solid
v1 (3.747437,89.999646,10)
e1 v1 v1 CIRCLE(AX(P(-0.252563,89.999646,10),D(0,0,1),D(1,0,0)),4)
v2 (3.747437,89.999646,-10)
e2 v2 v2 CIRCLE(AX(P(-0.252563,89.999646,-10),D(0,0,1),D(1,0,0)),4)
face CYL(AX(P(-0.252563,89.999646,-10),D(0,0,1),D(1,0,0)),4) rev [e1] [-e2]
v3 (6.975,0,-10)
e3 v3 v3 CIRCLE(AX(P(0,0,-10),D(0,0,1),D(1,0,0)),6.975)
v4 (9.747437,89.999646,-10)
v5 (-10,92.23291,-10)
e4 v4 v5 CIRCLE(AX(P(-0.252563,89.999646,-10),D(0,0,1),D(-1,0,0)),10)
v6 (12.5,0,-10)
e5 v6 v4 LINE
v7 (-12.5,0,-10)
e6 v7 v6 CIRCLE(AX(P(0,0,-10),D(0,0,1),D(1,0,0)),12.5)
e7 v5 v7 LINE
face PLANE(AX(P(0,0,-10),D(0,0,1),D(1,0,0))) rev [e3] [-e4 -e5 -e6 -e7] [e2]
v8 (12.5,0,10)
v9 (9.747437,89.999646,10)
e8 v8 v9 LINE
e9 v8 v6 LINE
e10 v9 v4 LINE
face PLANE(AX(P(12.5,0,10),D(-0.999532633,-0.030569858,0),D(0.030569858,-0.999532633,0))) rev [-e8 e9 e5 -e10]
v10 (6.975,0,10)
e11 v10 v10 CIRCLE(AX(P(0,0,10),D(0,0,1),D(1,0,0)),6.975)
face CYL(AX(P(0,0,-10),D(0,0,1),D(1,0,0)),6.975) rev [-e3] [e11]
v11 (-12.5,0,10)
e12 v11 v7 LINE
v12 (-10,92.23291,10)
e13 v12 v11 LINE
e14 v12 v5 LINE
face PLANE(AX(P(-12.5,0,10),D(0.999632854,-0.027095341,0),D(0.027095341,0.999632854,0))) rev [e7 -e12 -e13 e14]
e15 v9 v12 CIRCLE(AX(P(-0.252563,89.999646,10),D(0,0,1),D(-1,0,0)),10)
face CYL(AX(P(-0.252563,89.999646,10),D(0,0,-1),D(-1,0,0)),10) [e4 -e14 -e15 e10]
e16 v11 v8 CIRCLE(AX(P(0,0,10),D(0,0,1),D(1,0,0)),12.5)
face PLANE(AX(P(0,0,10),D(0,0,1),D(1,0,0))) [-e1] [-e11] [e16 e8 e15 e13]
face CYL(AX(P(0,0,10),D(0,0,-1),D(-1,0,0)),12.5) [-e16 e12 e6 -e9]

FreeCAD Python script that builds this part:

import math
import FreeCAD as App
import Part
import Sketcher
Q = App.Units.Quantity

doc = App.newDocument("Part")
params = doc.addObject("Spreadsheet::Sheet", "Params")
for row, (alias, value) in enumerate([
    ("sketch1_radius", "10 mm"),
    ("sketch1_radius2", "12.5 mm"),
    ("pad1_length", "20 mm"),
    ("sketch2_diameter", "8 mm"),
    ("sketch3_diameter", "13.95 mm"),
], start=1):
    params.set(f"A{row}", alias)
    params.set(f"B{row}", "=" + value)
    params.setAlias(f"B{row}", alias)

body = doc.addObject("PartDesign::Body", "Body")

# Sketch on XY plane
sketch1 = doc.addObject("Sketcher::SketchObject", "Sketch")
body.addObject(sketch1)
sketch1.AttachmentSupport = (doc.XY_Plane, [""])
sketch1.MapMode = "FlatFace"
sketch1.addGeometry([
    Part.LineSegment(App.Vector(-10, 92, 0), App.Vector(-12, 0, 0)),
    Part.ArcOfCircle(Part.Circle(App.Vector(0, 0, 0), App.Vector(0, 0, 1), 12), math.radians(180), math.radians(360)),
    Part.LineSegment(App.Vector(12, 0, 0), App.Vector(10, 90, 0)),
    Part.ArcOfCircle(Part.Circle(App.Vector(0, 90, 0), App.Vector(0, 0, 1), 10), math.radians(0), math.radians(167)),
], False)
sketch1.addConstraint([
    Sketcher.Constraint("Coincident", 0, 2, 1, 1),
    Sketcher.Constraint("Coincident", 1, 2, 2, 1),
    Sketcher.Constraint("Coincident", 2, 2, 3, 1),
    Sketcher.Constraint("Coincident", 3, 2, 0, 1),
    Sketcher.Constraint("Coincident", 1, 3, -1, 1),
    Sketcher.Constraint("PointOnObject", 0, 2, -1),
    Sketcher.Constraint("PointOnObject", 1, 2, -1),
    Sketcher.Constraint("Horizontal", 3, 3, 2, 2),
    Sketcher.Constraint("Radius", 3, Q("10 mm")),
    Sketcher.Constraint("Radius", 1, Q("12.5 mm")),
    Sketcher.Constraint("DistanceX", 3, 2, -1, 1, Q("10 mm")),
    Sketcher.Constraint("Distance", 2, Q("90.041728 mm")),
    Sketcher.Constraint("DistanceY", -1, 1, 3, 2, Q("92.23291 mm")),
])
sketch1.setExpression("Constraints[8]", "Params.sketch1_radius")
sketch1.setExpression("Constraints[9]", "Params.sketch1_radius2")
pad1 = doc.addObject("PartDesign::Pad", "Pad")
body.addObject(pad1)
pad1.Profile = sketch1
pad1.setExpression("Length", "Params.pad1_length")
pad1.Midplane = True

# Sketch on XY plane
sketch2 = doc.addObject("Sketcher::SketchObject", "Sketch001")
body.addObject(sketch2)
sketch2.AttachmentSupport = (doc.XY_Plane, [""])
sketch2.MapMode = "FlatFace"
sketch2.AttachmentOffset = App.Placement(App.Vector(0, 0, 10), App.Rotation())
sketch2.addGeometry(Part.Circle(App.Vector(-0.3, 90, 0), App.Vector(0, 0, 1), 4), False)
sketch2.addConstraint([
    Sketcher.Constraint("Diameter", 0, Q("8 mm")),
    Sketcher.Constraint("DistanceX", 0, 3, -1, 1, Q("0.252563 mm")),
    Sketcher.Constraint("DistanceY", -1, 1, 0, 3, Q("89.999646 mm")),
])
sketch2.setExpression("Constraints[0]", "Params.sketch2_diameter")
pocket1 = doc.addObject("PartDesign::Pocket", "Pocket")
body.addObject(pocket1)
pocket1.Profile = sketch2
pocket1.Type = "ThroughAll"

# Sketch on XY plane
sketch3 = doc.addObject("Sketcher::SketchObject", "Sketch002")
body.addObject(sketch3)
sketch3.AttachmentSupport = (doc.XY_Plane, [""])
sketch3.MapMode = "FlatFace"
sketch3.AttachmentOffset = App.Placement(App.Vector(0, 0, 10), App.Rotation())
sketch3.addGeometry(Part.Circle(App.Vector(0, 0, 0), App.Vector(0, 0, 1), 7), False)
sketch3.addConstraint([
    Sketcher.Constraint("Coincident", 0, 3, -1, 1),
    Sketcher.Constraint("Diameter", 0, Q("13.95 mm")),
])
sketch3.setExpression("Constraints[1]", "Params.sketch3_diameter")
pocket2 = doc.addObject("PartDesign::Pocket", "Pocket001")
body.addObject(pocket2)
pocket2.Profile = sketch3
pocket2.Type = "ThroughAll"

doc.recompute()
